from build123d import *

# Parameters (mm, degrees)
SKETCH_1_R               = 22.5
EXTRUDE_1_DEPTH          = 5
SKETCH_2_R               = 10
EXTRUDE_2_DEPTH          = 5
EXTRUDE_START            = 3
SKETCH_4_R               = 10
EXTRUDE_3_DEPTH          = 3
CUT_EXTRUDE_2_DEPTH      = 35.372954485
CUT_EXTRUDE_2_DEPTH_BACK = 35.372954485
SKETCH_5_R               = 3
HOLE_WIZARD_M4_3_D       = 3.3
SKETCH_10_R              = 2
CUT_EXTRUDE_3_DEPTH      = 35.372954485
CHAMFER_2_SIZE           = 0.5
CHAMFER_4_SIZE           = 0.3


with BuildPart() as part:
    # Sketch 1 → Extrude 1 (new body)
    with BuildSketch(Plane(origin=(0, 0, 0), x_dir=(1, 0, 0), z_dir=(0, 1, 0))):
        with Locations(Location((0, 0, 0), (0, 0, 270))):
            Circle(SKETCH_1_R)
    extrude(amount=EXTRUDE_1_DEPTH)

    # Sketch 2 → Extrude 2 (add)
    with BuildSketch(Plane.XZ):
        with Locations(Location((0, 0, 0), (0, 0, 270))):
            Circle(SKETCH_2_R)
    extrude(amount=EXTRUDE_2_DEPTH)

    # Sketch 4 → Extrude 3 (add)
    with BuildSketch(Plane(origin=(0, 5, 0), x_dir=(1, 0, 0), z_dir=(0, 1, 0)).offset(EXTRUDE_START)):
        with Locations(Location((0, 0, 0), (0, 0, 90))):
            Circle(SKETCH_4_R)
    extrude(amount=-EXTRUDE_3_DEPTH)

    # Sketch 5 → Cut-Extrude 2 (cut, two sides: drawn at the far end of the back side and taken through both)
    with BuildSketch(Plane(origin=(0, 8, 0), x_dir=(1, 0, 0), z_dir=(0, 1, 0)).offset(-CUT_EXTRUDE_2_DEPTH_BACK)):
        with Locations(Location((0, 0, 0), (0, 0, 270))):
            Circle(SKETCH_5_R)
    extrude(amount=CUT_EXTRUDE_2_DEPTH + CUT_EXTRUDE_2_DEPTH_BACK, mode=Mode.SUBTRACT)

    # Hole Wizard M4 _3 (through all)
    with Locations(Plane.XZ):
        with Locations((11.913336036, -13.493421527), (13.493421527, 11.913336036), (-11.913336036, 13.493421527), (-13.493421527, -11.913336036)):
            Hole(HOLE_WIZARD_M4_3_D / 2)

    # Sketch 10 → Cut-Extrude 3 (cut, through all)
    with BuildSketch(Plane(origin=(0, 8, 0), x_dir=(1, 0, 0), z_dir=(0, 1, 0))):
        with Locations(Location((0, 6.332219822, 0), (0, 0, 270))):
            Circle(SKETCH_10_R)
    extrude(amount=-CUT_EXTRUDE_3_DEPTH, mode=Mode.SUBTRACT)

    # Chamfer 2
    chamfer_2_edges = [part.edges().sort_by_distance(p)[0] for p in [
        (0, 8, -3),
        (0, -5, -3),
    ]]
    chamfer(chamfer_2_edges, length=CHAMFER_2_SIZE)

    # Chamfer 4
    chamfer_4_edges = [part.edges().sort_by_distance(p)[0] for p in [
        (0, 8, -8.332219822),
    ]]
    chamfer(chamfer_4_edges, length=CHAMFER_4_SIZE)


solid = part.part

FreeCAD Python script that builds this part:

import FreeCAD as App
import Part
import Sketcher
from FreeCAD import Vector


def edges_at(feature, points):
    """Names of the edges that pass closest to the given points."""
    edges = feature.Shape.Edges
    near = lambda p: min(range(len(edges)), key=lambda i: edges[i].distToShape(Part.Vertex(*p))[0])
    return sorted({f"Edge{near(p) + 1}" for p in points})

doc = App.newDocument("Part")
body = doc.addObject("PartDesign::Body", "Body")

sketch1 = body.newObject("Sketcher::SketchObject", "Sketch")
sketch1.AttachmentSupport = (doc.getObject("XZ_Plane"), [""])
sketch1.MapMode = "FlatFace"
sketch1.addGeometry(Part.Circle(Vector(0, 0, 0), Vector(0, 0, 1), 22.5), False)
sketch1.addConstraint([
    Sketcher.Constraint("Coincident", 0, 3, -1, 1),
    Sketcher.Constraint("Diameter", 0, 45.0),
])
pad1 = body.newObject("PartDesign::Pad", "Pad")
pad1.Profile = sketch1
pad1.Length = 5
pad1.Reversed = True

sketch2 = body.newObject("Sketcher::SketchObject", "Sketch001")
sketch2.AttachmentSupport = (doc.getObject("XZ_Plane"), [""])
sketch2.MapMode = "FlatFace"
sketch2.addGeometry(Part.Circle(Vector(0, 0, 0), Vector(0, 0, 1), 10), False)
sketch2.addConstraint([
    Sketcher.Constraint("Coincident", 0, 3, -1, 1),
    Sketcher.Constraint("Diameter", 0, 20.0),
])
pad2 = body.newObject("PartDesign::Pad", "Pad001")
pad2.Profile = sketch2
pad2.Length = 5

sketch3 = body.newObject("Sketcher::SketchObject", "Sketch002")
sketch3.AttachmentSupport = (doc.getObject("XZ_Plane"), [""])
sketch3.MapMode = "FlatFace"
sketch3.AttachmentOffset = App.Placement(Vector(0, 0, -8), App.Rotation())
sketch3.addGeometry(Part.Circle(Vector(0, 0, 0), Vector(0, 0, 1), 10), False)
sketch3.addConstraint([
    Sketcher.Constraint("Coincident", 0, 3, -1, 1),
    Sketcher.Constraint("Diameter", 0, 20.0),
])
pad3 = body.newObject("PartDesign::Pad", "Pad002")
pad3.Profile = sketch3
pad3.Length = 3

sketch4 = body.newObject("Sketcher::SketchObject", "Sketch003")
sketch4.AttachmentSupport = (doc.getObject("XZ_Plane"), [""])
sketch4.MapMode = "FlatFace"
sketch4.AttachmentOffset = App.Placement(Vector(0, 0, -8), App.Rotation())
sketch4.addGeometry(Part.Circle(Vector(0, 0, 0), Vector(0, 0, 1), 3), False)
sketch4.addConstraint([
    Sketcher.Constraint("Coincident", 0, 3, -1, 1),
    Sketcher.Constraint("Diameter", 0, 6.0),
])
pocket1 = body.newObject("PartDesign::Pocket", "Pocket")
pocket1.Profile = sketch4
pocket1.Type = "ThroughAll"
pocket1.Midplane = True

sketch5 = body.newObject("Sketcher::SketchObject", "Sketch004")
sketch5.AttachmentSupport = (doc.getObject("XZ_Plane"), [""])
sketch5.MapMode = "FlatFace"
sketch5.addGeometry([
    Part.Circle(Vector(11.913336, -13.493422, 0), Vector(0, 0, 1), 1.65),
    Part.Circle(Vector(13.493422, 11.913336, 0), Vector(0, 0, 1), 1.65),
    Part.Circle(Vector(-11.913336, 13.493422, 0), Vector(0, 0, 1), 1.65),
    Part.Circle(Vector(-13.493422, -11.913336, 0), Vector(0, 0, 1), 1.65),
], False)
sketch5.addConstraint([
    Sketcher.Constraint("Equal", 0, 1),
    Sketcher.Constraint("Equal", 1, 2),
    Sketcher.Constraint("Equal", 2, 3),
    Sketcher.Constraint("Symmetric", 0, 3, 2, 3, -1, 1),
    Sketcher.Constraint("Symmetric", 1, 3, 3, 3, -1, 1),
    Sketcher.Constraint("Diameter", 0, 3.3),
    Sketcher.Constraint("DistanceY", 0, 3, -1, 1, 13.493422),
    Sketcher.Constraint("DistanceX", -1, 1, 1, 3, 13.493422),
    Sketcher.Constraint("DistanceX", -1, 1, 0, 3, 11.913336),
    Sketcher.Constraint("DistanceY", -1, 1, 1, 3, 11.913336),
])
doc.recompute()
hole = body.newObject("PartDesign::Hole", "Hole")
hole.Profile = sketch5
hole.ThreadType = "None"
hole.Diameter = 3.3
hole.DepthType = "ThroughAll"

sketch6 = body.newObject("Sketcher::SketchObject", "Sketch005")
sketch6.AttachmentSupport = (doc.getObject("XZ_Plane"), [""])
sketch6.MapMode = "FlatFace"
sketch6.AttachmentOffset = App.Placement(Vector(0, 0, -8), App.Rotation())
sketch6.addGeometry(Part.Circle(Vector(0, -6.33222, 0), Vector(0, 0, 1), 2), False)
sketch6.addConstraint([
    Sketcher.Constraint("PointOnObject", 0, 3, -2),
    Sketcher.Constraint("Diameter", 0, 4.0),
    Sketcher.Constraint("DistanceY", 0, 3, -1, 1, 6.33222),
])
pocket2 = body.newObject("PartDesign::Pocket", "Pocket001")
pocket2.Profile = sketch6
pocket2.Type = "ThroughAll"
pocket2.Reversed = True
doc.recompute()

chamfer = body.newObject("PartDesign::Chamfer", "Chamfer")
chamfer.Base = (pocket2, edges_at(pocket2, [(0, 8, -3), (0, -5, -3)]))
chamfer.Size = 0.5
doc.recompute()

chamfer2 = body.newObject("PartDesign::Chamfer", "Chamfer001")
chamfer2.Base = (chamfer, edges_at(chamfer, [(0, 8, -8.332)]))
chamfer2.Size = 0.3

doc.recompute()
